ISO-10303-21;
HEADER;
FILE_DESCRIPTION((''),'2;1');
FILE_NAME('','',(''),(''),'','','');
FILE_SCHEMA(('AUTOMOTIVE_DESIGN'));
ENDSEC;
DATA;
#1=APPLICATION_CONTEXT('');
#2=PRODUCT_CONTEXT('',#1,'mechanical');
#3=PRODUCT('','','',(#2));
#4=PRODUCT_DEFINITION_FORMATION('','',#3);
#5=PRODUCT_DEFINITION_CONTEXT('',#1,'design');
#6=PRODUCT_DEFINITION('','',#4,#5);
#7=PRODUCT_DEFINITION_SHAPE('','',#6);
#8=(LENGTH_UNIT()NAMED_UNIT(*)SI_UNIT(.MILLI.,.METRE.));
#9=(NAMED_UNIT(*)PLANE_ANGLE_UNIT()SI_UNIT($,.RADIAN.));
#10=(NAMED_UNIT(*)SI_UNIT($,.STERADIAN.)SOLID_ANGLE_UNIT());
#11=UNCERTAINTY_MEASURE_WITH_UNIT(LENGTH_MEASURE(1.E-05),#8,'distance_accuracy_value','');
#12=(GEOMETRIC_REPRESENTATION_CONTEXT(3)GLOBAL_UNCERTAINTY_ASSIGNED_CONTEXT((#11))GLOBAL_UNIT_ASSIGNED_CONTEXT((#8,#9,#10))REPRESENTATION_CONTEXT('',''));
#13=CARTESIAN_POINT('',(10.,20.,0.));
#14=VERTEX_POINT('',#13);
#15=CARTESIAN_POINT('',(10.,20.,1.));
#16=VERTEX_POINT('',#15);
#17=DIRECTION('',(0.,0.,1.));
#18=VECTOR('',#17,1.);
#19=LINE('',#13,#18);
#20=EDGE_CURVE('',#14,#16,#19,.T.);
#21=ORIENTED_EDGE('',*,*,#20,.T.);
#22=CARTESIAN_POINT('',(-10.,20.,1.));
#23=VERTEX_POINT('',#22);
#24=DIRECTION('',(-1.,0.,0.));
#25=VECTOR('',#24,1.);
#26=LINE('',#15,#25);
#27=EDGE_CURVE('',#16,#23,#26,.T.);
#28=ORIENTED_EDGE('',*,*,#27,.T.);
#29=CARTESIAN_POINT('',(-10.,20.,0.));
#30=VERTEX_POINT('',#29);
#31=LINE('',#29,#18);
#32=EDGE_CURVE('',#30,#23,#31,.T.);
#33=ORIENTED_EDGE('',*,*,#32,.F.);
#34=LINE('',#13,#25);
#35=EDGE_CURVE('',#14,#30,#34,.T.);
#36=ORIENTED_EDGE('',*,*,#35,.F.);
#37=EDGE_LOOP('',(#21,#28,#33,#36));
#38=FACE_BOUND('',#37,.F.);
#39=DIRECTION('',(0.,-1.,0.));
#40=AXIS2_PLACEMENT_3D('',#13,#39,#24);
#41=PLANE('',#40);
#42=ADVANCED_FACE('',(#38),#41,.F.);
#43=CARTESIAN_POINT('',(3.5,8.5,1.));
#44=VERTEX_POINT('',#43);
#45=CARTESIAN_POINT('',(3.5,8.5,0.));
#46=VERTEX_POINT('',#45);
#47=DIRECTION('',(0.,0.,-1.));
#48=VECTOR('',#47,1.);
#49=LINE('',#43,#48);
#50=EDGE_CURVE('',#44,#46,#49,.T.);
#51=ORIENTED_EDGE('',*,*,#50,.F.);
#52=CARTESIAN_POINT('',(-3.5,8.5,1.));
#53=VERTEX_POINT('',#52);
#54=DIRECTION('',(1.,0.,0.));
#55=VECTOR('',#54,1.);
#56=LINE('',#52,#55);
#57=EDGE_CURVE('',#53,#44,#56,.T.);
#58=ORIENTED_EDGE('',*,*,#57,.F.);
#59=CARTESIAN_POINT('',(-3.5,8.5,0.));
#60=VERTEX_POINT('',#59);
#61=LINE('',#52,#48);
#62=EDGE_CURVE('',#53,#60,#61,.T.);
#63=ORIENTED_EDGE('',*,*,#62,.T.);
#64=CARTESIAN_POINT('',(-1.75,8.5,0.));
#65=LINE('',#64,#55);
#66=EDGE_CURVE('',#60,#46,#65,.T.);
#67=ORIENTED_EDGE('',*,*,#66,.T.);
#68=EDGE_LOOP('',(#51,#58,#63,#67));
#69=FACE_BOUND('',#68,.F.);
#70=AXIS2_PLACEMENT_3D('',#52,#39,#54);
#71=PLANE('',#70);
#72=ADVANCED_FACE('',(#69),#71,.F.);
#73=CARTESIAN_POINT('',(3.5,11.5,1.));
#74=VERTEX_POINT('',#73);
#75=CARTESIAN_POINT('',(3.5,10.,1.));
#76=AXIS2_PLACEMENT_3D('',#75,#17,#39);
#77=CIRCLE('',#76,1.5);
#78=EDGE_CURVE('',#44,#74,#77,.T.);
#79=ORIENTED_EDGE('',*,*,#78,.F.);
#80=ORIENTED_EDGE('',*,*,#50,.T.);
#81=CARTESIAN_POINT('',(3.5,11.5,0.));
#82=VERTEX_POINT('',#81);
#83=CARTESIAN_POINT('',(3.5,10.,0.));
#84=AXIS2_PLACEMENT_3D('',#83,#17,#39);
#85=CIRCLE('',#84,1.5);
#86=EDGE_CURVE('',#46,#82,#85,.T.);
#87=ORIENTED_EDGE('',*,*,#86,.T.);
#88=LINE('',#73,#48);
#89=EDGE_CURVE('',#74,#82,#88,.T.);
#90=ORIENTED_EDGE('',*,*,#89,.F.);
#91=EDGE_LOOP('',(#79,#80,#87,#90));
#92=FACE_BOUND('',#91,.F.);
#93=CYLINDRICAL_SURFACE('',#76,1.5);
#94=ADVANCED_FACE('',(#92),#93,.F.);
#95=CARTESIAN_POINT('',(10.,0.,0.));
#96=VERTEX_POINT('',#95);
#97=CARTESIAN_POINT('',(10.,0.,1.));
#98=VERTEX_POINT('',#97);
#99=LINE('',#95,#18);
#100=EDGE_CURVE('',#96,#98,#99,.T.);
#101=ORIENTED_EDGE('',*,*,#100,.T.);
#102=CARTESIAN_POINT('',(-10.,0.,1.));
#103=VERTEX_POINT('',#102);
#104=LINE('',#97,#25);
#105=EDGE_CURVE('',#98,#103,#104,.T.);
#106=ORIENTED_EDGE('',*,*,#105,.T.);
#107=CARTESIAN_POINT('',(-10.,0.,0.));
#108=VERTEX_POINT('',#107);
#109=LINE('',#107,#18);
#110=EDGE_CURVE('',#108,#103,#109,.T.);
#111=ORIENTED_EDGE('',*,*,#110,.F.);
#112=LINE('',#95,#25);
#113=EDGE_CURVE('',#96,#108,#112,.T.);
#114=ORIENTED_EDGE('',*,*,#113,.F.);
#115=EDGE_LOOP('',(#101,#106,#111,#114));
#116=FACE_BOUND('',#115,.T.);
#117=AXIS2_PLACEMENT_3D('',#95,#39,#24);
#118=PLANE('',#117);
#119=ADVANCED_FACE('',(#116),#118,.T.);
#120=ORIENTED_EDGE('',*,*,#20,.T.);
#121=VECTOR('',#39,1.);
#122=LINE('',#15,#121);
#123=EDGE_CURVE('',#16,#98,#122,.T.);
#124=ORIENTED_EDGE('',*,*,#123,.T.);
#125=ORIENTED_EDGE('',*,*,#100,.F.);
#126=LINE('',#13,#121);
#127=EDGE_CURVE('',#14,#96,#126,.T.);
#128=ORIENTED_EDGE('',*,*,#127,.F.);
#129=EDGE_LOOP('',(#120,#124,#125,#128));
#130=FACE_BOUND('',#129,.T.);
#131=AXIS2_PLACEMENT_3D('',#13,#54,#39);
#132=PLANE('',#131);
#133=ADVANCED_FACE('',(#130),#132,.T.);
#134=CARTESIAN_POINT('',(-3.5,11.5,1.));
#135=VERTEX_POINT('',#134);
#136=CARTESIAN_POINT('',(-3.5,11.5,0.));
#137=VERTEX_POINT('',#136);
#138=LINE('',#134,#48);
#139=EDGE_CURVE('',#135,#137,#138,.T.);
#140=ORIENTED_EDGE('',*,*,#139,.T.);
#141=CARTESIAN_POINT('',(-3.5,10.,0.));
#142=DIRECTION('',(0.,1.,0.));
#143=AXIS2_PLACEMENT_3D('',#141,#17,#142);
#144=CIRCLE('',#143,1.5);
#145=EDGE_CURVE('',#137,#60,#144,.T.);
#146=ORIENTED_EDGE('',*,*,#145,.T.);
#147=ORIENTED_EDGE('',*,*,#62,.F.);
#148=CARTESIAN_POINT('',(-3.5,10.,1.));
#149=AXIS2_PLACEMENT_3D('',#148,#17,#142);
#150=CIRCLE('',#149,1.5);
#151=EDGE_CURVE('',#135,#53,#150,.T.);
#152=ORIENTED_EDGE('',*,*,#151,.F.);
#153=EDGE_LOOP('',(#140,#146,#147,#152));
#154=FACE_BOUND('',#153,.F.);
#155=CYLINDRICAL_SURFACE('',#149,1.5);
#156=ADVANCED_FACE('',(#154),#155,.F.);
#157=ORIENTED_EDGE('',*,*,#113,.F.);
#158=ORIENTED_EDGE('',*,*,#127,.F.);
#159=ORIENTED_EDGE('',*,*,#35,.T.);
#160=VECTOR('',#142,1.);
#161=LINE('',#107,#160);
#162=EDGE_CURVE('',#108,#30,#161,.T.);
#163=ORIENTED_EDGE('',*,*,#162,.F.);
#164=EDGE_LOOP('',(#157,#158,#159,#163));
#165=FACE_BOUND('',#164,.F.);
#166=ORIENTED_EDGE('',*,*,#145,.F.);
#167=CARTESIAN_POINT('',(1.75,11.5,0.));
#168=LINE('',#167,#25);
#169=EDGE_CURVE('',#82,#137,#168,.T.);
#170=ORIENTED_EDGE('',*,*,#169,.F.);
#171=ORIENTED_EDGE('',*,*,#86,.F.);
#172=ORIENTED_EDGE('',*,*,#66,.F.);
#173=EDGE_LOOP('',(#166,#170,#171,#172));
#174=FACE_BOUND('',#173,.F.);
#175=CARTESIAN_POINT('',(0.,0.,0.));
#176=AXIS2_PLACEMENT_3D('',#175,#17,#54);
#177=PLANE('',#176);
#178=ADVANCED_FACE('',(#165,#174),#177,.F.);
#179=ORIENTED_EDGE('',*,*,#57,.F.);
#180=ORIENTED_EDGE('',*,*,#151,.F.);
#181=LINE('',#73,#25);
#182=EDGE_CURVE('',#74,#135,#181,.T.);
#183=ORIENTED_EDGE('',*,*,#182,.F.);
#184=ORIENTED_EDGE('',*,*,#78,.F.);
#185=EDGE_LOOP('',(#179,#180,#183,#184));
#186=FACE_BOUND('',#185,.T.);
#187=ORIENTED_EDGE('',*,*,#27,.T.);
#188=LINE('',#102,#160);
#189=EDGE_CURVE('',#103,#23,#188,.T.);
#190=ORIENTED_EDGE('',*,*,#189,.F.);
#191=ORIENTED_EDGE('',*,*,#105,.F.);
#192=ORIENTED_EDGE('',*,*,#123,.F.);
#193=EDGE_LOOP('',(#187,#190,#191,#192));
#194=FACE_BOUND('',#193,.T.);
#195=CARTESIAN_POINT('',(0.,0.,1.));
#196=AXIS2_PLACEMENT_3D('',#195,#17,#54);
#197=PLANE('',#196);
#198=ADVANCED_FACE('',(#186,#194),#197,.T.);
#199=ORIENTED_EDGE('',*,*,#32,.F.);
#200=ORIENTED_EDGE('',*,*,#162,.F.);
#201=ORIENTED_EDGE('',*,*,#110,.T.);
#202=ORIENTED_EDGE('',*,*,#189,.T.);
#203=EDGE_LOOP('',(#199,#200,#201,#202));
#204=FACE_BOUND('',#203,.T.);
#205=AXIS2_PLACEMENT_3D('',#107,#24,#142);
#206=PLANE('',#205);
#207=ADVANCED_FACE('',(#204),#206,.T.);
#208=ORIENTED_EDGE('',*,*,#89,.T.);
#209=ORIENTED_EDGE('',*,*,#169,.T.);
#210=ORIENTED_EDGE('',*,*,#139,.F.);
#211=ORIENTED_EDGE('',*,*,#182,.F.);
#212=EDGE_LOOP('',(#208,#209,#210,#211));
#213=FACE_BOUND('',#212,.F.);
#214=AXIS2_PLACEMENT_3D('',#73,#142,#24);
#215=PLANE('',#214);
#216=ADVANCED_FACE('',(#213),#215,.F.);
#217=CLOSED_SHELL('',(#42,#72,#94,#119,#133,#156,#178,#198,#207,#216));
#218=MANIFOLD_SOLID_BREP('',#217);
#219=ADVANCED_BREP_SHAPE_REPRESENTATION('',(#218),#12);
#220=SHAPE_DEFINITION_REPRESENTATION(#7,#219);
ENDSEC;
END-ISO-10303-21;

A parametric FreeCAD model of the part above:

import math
import FreeCAD as App
import Part
import Sketcher

V = App.Vector
Q = App.Units.Quantity

doc = App.newDocument("Part")
params = doc.addObject("Spreadsheet::Sheet", "Params")
for row, (alias, value) in enumerate([
    ("sketch1_width", "20 mm"),
    ("pad1_length", "1 mm"),
    ("sketch2_radius", "1.5 mm"),
    ("sketch2_width", "7 mm"),
], start=1):
    params.set(f"A{row}", alias)
    params.set(f"B{row}", "=" + value)
    params.setAlias(f"B{row}", alias)

body = doc.addObject("PartDesign::Body", "Body")

sketch1 = doc.addObject("Sketcher::SketchObject", "Sketch")
body.addObject(sketch1)
sketch1.AttachmentSupport = (doc.XY_Plane, [""])
sketch1.MapMode = "FlatFace"
sketch1.addGeometry([
    Part.LineSegment(V(10, 0, 0), V(10, 20, 0)),
    Part.LineSegment(V(10, 20, 0), V(-10, 20, 0)),
    Part.LineSegment(V(-10, 20, 0), V(-10, 0, 0)),
    Part.LineSegment(V(-10, 0, 0), V(10, 0, 0)),
], False)
sketch1.addConstraint([
    Sketcher.Constraint("Coincident", 0, 2, 1, 1),
    Sketcher.Constraint("Coincident", 1, 2, 2, 1),
    Sketcher.Constraint("Coincident", 2, 2, 3, 1),
    Sketcher.Constraint("Coincident", 3, 2, 0, 1),
    Sketcher.Constraint("Vertical", 0),
    Sketcher.Constraint("Horizontal", 1),
    Sketcher.Constraint("Vertical", 2),
    Sketcher.Constraint("Horizontal", 3),
    Sketcher.Constraint("Symmetric", 2, 2, 3, 2, -1, 1),
    Sketcher.Constraint("Equal", 3, 0),
    Sketcher.Constraint("DistanceX", 1, 2, 1, 1, Q("20 mm")),
])
sketch1.setExpression("Constraints[10]", "Params.sketch1_width")
pad1 = doc.addObject("PartDesign::Pad", "Pad")
body.addObject(pad1)
pad1.Profile = sketch1
pad1.setExpression("Length", "Params.pad1_length")

sketch2 = doc.addObject("Sketcher::SketchObject", "Sketch001")
body.addObject(sketch2)
sketch2.AttachmentSupport = (doc.XY_Plane, [""])
sketch2.MapMode = "FlatFace"
sketch2.AttachmentOffset = App.Placement(V(0, 0, 1), App.Rotation())
sketch2.addGeometry([
    Part.ArcOfCircle(Part.Circle(V(3.5, 10, 0), V(0, 0, 1), 1.5), math.radians(-90), math.radians(90)),
    Part.LineSegment(V(3.5, 11.5, 0), V(-3.5, 11.5, 0)),
    Part.ArcOfCircle(Part.Circle(V(-3.5, 10, 0), V(0, 0, 1), 1.5), math.radians(90), math.radians(270)),
    Part.LineSegment(V(-3.5, 8.5, 0), V(3.5, 8.5, 0)),
], False)
sketch2.addConstraint([
    Sketcher.Constraint("Tangent", 0, 2, 1, 1),
    Sketcher.Constraint("Tangent", 1, 2, 2, 1),
    Sketcher.Constraint("Tangent", 2, 2, 3, 1),
    Sketcher.Constraint("Tangent", 3, 2, 0, 1),
    Sketcher.Constraint("Horizontal", 1),
    Sketcher.Constraint("Horizontal", 3),
    Sketcher.Constraint("Radius", 0, Q("1.5 mm")),
    Sketcher.Constraint("DistanceY", -1, 1, 0, 3, Q("10 mm")),
    Sketcher.Constraint("DistanceX", 1, 2, 1, 1, Q("7 mm")),
    Sketcher.Constraint("DistanceX", -1, 1, 0, 3, Q("3.5 mm")),
])
sketch2.setExpression("Constraints[6]", "Params.sketch2_radius")
sketch2.setExpression("Constraints[8]", "Params.sketch2_width")
pocket1 = doc.addObject("PartDesign::Pocket", "Pocket")
body.addObject(pocket1)
pocket1.Profile = sketch2
pocket1.Type = "ThroughAll"

doc.recompute()
